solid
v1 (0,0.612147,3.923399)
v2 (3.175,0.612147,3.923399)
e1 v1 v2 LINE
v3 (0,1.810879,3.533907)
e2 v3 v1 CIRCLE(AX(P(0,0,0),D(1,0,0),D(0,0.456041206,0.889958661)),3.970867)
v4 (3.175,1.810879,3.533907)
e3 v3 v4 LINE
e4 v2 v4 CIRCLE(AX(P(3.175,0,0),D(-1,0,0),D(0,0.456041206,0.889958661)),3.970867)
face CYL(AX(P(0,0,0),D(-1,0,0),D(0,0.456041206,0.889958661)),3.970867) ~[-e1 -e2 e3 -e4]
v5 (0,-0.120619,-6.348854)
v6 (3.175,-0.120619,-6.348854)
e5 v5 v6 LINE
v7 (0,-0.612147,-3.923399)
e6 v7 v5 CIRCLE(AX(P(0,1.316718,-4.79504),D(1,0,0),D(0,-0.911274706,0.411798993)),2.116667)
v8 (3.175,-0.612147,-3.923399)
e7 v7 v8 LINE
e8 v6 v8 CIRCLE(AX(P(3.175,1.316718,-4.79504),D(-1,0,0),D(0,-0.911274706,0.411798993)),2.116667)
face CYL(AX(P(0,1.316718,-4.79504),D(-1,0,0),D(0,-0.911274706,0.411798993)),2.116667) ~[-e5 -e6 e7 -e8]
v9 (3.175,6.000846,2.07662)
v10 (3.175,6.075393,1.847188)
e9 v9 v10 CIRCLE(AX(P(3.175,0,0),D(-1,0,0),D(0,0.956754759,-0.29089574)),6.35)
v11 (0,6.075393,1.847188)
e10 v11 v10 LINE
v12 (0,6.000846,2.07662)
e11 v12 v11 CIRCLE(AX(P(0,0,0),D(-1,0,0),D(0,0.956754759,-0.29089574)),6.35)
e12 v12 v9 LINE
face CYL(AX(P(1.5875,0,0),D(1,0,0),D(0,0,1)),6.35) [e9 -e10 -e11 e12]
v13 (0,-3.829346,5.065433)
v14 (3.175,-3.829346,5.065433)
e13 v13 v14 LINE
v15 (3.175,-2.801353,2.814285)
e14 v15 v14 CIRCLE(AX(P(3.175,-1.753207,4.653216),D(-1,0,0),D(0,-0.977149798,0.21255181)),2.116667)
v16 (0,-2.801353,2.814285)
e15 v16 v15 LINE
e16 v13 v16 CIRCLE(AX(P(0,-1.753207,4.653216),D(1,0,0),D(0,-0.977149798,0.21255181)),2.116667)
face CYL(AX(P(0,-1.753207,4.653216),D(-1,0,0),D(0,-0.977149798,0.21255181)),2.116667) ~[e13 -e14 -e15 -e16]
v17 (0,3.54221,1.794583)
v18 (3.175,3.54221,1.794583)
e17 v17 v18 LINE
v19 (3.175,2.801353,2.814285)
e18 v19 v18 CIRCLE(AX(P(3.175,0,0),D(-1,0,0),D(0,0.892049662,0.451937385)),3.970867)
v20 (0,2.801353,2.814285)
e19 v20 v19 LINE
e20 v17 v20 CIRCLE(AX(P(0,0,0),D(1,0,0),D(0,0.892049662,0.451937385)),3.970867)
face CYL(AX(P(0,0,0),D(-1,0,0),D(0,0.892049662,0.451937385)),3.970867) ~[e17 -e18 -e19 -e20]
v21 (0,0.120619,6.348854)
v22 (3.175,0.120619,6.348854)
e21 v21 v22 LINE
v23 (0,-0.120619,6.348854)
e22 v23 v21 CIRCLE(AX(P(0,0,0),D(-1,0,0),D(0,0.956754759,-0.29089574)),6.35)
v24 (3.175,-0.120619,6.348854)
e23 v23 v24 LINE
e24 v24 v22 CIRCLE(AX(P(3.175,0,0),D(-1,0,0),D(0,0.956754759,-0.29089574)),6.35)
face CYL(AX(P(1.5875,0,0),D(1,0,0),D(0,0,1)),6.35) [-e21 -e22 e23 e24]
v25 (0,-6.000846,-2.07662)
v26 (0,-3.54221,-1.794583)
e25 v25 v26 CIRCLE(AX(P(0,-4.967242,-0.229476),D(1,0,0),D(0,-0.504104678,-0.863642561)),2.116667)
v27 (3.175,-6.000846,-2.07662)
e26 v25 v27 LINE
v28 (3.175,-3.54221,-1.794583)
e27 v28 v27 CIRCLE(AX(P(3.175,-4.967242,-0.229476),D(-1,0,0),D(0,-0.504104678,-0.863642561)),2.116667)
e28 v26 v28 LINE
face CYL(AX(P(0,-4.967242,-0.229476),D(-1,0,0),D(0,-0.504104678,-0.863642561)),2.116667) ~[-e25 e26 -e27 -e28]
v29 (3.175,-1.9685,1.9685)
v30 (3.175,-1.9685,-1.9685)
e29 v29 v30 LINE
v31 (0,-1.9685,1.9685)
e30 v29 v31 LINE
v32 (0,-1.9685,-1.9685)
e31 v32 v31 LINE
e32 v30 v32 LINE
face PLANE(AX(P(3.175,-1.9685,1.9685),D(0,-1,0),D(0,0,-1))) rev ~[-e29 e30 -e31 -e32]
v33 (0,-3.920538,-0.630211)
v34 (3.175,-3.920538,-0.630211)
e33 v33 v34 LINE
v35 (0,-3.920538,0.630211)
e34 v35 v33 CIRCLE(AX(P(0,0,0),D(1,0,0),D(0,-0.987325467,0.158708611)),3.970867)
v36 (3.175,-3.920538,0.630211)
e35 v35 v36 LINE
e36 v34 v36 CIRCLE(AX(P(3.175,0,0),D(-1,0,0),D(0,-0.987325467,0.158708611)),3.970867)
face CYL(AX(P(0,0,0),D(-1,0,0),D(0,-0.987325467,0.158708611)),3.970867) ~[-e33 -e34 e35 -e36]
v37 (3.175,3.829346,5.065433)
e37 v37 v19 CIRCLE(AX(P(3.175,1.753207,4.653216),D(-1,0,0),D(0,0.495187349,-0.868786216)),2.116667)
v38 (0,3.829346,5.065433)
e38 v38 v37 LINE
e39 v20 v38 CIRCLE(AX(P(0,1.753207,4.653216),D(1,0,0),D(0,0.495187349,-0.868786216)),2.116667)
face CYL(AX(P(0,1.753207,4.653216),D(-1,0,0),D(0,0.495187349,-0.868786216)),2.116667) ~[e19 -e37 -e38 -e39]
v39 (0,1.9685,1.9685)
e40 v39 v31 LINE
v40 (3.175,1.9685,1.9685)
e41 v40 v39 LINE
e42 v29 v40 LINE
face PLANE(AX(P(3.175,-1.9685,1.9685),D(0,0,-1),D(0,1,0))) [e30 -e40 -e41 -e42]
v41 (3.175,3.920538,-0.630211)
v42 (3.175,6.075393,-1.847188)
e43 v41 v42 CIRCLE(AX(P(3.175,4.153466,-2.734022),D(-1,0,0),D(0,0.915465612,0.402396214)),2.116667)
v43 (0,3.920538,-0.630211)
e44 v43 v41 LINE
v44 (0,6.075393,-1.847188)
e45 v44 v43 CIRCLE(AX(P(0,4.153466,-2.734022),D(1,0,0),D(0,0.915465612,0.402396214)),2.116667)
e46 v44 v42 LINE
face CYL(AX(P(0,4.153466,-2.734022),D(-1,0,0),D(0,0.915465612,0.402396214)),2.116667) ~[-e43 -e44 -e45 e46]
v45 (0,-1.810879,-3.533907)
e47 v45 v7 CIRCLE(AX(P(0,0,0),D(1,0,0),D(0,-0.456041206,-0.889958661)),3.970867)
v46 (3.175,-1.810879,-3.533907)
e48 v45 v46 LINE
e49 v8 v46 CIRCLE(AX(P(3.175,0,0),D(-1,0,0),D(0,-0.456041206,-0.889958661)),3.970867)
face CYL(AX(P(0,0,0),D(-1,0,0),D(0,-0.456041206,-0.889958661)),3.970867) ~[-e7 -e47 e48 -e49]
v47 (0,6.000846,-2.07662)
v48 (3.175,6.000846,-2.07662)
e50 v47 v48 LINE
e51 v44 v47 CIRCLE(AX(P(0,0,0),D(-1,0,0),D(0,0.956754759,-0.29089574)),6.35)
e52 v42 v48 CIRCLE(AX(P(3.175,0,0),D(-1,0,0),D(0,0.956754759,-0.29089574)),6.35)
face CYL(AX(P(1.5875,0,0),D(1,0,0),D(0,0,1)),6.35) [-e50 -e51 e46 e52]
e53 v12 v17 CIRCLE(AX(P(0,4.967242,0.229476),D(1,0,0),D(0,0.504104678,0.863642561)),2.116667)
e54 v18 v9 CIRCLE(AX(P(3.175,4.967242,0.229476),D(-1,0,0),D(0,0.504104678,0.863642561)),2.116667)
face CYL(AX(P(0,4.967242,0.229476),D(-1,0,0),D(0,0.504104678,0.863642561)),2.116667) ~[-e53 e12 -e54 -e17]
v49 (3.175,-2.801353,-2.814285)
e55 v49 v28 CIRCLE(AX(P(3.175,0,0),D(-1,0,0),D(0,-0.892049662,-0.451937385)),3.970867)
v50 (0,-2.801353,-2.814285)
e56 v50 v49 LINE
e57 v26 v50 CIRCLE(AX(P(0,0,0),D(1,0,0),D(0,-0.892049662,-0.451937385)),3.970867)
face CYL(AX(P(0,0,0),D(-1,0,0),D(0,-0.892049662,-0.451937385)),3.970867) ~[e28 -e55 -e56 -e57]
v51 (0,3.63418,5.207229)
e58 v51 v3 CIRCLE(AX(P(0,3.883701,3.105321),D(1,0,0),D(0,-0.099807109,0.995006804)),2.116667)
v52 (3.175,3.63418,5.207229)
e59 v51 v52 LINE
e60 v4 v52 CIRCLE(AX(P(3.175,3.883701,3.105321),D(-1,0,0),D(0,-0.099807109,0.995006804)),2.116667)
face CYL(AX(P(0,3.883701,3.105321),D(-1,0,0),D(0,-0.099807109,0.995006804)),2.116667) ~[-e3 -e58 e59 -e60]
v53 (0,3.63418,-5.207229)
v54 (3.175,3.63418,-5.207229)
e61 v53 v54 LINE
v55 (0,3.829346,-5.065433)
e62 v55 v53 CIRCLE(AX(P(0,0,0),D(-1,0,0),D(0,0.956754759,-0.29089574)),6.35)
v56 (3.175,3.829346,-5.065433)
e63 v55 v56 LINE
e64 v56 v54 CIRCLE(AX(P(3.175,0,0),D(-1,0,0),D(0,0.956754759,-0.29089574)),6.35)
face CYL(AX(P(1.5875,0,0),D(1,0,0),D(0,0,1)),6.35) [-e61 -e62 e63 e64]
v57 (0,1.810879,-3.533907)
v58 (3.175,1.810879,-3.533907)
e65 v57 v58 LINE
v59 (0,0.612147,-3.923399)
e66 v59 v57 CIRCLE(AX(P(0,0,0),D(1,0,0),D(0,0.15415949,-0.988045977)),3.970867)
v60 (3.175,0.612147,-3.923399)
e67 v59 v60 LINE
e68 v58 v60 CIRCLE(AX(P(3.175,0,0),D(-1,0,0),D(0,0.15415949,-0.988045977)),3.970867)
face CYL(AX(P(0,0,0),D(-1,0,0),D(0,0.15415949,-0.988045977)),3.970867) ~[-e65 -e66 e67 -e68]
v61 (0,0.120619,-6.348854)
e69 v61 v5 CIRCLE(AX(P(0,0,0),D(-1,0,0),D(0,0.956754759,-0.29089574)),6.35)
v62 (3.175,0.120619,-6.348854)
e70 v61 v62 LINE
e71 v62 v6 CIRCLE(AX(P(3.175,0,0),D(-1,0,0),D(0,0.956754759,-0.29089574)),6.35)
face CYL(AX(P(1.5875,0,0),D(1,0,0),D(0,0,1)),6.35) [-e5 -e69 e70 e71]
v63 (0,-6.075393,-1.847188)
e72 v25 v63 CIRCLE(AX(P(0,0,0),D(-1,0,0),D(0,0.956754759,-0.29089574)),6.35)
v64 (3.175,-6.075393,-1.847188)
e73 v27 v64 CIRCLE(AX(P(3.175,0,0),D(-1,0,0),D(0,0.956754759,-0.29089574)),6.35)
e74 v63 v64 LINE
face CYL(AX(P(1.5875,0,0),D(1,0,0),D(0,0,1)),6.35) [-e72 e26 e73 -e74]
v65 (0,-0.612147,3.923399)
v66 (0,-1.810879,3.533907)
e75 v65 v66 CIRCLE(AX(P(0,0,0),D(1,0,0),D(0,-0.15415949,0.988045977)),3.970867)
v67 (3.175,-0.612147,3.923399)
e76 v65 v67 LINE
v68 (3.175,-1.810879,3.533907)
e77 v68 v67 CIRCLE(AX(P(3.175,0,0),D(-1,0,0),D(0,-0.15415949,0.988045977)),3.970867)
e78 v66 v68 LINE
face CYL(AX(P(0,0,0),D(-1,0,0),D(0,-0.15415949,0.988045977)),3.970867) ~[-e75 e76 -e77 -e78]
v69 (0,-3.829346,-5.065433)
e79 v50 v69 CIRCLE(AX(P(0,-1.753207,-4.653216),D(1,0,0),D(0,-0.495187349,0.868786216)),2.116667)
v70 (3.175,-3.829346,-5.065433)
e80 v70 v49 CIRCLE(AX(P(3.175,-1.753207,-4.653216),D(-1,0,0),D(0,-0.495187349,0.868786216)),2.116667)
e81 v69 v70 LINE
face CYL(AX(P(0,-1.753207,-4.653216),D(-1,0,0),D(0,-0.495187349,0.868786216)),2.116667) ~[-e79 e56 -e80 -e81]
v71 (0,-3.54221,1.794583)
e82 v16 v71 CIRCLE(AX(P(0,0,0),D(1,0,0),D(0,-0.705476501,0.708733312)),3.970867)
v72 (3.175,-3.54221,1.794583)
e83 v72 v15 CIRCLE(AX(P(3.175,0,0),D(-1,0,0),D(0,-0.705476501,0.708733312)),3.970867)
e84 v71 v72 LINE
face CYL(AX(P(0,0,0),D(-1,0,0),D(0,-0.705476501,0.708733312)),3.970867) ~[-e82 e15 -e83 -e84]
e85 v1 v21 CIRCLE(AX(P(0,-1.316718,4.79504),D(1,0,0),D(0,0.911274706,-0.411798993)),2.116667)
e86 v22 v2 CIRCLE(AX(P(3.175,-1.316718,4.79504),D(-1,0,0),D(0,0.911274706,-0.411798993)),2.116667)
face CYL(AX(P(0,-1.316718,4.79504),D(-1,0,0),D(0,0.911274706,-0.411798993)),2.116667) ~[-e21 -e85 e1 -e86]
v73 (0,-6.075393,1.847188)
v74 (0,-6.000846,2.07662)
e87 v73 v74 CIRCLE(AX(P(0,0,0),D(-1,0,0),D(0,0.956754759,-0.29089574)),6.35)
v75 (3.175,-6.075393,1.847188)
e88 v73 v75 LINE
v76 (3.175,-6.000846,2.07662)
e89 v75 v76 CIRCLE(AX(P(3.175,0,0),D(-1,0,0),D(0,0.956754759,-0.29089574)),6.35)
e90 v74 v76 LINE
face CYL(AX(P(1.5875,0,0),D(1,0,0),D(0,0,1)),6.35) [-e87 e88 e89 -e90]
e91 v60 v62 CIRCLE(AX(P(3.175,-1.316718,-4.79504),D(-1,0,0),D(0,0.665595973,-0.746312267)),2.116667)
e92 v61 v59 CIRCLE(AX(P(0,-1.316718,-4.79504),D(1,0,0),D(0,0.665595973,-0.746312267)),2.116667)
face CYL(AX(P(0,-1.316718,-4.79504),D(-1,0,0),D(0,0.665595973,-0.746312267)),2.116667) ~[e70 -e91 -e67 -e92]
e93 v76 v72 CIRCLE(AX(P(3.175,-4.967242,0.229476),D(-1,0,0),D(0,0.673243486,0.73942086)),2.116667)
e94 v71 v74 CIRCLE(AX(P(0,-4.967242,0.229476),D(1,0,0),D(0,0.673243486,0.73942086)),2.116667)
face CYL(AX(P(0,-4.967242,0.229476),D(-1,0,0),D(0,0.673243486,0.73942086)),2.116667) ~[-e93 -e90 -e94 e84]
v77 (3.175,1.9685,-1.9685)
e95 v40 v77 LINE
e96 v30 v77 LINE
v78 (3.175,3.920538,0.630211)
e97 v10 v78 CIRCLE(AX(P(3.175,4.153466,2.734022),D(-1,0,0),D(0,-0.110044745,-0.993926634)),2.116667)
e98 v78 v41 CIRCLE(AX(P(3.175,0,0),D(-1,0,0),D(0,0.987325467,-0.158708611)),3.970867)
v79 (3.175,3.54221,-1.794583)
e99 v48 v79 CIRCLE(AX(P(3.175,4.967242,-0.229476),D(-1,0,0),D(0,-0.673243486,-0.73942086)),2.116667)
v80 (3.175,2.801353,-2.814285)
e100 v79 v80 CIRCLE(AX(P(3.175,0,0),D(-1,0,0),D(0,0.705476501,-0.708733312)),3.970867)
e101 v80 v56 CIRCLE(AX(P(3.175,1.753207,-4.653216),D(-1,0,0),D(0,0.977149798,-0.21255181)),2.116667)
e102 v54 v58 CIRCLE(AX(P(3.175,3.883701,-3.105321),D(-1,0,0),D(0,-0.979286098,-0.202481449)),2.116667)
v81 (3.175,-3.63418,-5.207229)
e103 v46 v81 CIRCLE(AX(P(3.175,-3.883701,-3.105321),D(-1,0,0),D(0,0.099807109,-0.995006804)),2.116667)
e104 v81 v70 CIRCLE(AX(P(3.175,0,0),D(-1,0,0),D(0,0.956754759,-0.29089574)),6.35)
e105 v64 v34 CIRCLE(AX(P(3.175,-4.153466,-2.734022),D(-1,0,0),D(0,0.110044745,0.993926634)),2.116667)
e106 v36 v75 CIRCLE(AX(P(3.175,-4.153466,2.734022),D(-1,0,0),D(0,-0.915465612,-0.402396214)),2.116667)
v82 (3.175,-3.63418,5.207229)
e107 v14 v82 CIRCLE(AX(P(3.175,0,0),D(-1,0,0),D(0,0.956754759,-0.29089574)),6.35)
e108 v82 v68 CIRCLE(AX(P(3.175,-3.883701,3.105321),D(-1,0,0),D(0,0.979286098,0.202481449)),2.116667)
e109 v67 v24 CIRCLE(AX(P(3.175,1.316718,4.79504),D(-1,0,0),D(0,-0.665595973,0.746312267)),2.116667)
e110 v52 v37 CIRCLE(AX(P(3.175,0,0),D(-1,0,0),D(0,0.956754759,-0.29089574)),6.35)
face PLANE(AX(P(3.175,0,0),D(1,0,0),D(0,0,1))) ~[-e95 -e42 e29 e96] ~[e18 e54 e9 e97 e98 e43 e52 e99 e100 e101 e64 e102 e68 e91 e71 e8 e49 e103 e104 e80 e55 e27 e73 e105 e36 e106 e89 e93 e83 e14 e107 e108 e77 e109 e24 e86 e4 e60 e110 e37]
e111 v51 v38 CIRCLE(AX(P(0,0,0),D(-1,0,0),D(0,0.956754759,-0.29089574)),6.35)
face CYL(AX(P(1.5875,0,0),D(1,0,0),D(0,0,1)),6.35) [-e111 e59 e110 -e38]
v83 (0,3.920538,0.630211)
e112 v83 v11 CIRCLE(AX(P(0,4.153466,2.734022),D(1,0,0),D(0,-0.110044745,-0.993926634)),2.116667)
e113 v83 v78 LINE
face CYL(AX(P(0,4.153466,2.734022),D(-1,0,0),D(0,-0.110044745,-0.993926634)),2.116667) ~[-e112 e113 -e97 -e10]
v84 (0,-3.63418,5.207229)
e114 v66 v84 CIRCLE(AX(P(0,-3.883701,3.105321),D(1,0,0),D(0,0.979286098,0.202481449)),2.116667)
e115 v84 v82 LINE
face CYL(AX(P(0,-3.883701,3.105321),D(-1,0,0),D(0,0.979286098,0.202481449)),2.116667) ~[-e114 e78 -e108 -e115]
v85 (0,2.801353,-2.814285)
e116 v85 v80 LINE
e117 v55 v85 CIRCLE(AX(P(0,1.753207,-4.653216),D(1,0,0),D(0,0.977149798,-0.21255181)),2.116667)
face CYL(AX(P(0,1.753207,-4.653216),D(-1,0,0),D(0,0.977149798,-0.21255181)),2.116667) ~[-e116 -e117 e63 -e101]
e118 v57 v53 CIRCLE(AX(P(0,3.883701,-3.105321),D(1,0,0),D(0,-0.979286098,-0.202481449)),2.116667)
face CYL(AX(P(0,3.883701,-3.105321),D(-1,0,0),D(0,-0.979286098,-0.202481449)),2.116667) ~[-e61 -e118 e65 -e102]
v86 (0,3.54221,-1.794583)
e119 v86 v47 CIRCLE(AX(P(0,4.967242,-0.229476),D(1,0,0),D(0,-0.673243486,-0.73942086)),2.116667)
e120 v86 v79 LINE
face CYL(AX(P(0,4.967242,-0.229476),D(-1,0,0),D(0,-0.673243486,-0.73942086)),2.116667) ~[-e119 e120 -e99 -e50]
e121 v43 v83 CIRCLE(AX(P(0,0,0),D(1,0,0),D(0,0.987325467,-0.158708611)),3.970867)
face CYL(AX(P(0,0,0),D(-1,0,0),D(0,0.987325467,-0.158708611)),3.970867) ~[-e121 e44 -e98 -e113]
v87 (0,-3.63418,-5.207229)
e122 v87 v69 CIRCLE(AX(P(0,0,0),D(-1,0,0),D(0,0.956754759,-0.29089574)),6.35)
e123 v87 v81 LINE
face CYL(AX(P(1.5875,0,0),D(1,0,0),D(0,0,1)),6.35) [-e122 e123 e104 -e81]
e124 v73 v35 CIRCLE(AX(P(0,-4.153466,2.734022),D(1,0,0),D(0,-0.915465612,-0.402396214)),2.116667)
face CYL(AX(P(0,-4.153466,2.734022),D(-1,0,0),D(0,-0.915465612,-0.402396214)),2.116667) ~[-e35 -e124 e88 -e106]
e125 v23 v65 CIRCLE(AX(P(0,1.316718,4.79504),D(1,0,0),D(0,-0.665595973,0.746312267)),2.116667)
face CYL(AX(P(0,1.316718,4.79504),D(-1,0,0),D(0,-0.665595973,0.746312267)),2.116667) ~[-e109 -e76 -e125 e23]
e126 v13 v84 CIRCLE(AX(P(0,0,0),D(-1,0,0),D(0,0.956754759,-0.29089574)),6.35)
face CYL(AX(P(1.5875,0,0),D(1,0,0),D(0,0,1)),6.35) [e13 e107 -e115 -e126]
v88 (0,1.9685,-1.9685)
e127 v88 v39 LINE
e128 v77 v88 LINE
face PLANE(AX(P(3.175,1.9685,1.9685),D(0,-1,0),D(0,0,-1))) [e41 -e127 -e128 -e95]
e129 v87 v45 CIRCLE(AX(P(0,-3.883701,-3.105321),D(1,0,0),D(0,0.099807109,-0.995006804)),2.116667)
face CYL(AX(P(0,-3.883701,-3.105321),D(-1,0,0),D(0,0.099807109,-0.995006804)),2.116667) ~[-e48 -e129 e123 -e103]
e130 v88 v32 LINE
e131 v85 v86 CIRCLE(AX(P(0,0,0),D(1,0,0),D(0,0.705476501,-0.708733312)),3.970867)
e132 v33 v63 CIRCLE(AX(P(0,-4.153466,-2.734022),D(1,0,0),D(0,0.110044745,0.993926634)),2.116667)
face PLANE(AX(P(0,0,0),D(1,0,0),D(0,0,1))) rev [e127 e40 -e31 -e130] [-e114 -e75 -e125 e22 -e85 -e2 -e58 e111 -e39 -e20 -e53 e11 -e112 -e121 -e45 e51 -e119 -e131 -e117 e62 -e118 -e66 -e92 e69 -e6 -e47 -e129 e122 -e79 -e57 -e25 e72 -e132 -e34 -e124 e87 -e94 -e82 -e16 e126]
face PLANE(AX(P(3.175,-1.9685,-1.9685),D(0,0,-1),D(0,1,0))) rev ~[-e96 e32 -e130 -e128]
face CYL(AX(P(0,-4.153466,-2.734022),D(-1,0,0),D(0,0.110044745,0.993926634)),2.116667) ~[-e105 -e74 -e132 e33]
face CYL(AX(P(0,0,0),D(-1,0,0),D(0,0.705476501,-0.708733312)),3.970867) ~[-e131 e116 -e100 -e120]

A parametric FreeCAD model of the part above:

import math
import FreeCAD as App
import Part
import Sketcher
Q = App.Units.Quantity

doc = App.newDocument("Part")
params = doc.addObject("Spreadsheet::Sheet", "Params")
for row, (alias, value) in enumerate([
    ("sketch1_height", "0.25 in"),
    ("sketch1_width", "0.125 in"),
    ("revolution_angle", "360 deg"),
    ("sketch2_radius", "0.251 in"),
    ("pocket2_length", "101.600102 mm"),
    ("sketch4_width", "0.155 in"),
], start=1):
    params.set(f"A{row}", alias)
    params.set(f"B{row}", "=" + value)
    params.setAlias(f"B{row}", alias)

body = doc.addObject("PartDesign::Body", "Body")

sketch1 = body.newObject("Sketcher::SketchObject", "Sketch")
sketch1.AttachmentSupport = (doc.getObject("XZ_Plane"), [""])
sketch1.MapMode = "FlatFace"
sketch1.addGeometry(Part.LineSegment(App.Vector(0, -6.35, 0), App.Vector(0, 0, 0)), False)
sketch1.addGeometry(Part.LineSegment(App.Vector(0, 0, 0), App.Vector(3.175, 0, 0)), False)
sketch1.addGeometry(Part.LineSegment(App.Vector(3.175, 0, 0), App.Vector(3.175, -6.35, 0)), False)
sketch1.addGeometry(Part.LineSegment(App.Vector(3.175, -6.35, 0), App.Vector(0, -6.35, 0)), False)
sketch1.addConstraint(Sketcher.Constraint("Coincident", 0, 2, 1, 1))
sketch1.addConstraint(Sketcher.Constraint("Coincident", 1, 2, 2, 1))
sketch1.addConstraint(Sketcher.Constraint("Coincident", 2, 2, 3, 1))
sketch1.addConstraint(Sketcher.Constraint("Coincident", 3, 2, 0, 1))
sketch1.addConstraint(Sketcher.Constraint("Vertical", 0))
sketch1.addConstraint(Sketcher.Constraint("Horizontal", 1))
sketch1.addConstraint(Sketcher.Constraint("Vertical", 2))
sketch1.addConstraint(Sketcher.Constraint("Horizontal", 3))
sketch1.addConstraint(Sketcher.Constraint("Coincident", 0, 2, -1, 1))
sketch1.addConstraint(Sketcher.Constraint("DistanceY", 0, 1, 0, 2, Q("0.25 in")))
sketch1.addConstraint(Sketcher.Constraint("DistanceX", 1, 1, 1, 2, Q("0.125 in")))
sketch1.setExpression("Constraints[9]", "Params.sketch1_height")
sketch1.setExpression("Constraints[10]", "Params.sketch1_width")
revolution = body.newObject("PartDesign::Revolution", "Revolution")
revolution.Profile = sketch1
revolution.ReferenceAxis = (sketch1, ["H_Axis"])
revolution.setExpression("Angle", "Params.revolution_angle")

sketch2 = body.newObject("Sketcher::SketchObject", "Sketch001")
sketch2.AttachmentSupport = (doc.getObject("YZ_Plane"), [""])
sketch2.MapMode = "FlatFace"
sketch2.addGeometry(Part.ArcOfCircle(Part.Circle(App.Vector(0, 0, 0), App.Vector(0, 0, 1), 3.970867), math.radians(-9.131947), math.radians(9.131947)), False)
sketch2.addGeometry(Part.ArcOfCircle(Part.Circle(App.Vector(4.153466, -2.734022, 0), App.Vector(0, 0, 1), 2.116667), math.radians(23.728063), math.radians(96.317895)), False)
sketch2.addGeometry(Part.ArcOfCircle(Part.Circle(App.Vector(0, 0, 0), App.Vector(0, 0, 1), 6.3754), math.radians(-17.172027), math.radians(17.172027)), False)
sketch2.addGeometry(Part.ArcOfCircle(Part.Circle(App.Vector(4.153466, 2.734022, 0), App.Vector(0, 0, 1), 2.116667), math.radians(-96.317895), math.radians(-23.728063)), False)
sketch2.addConstraint(Sketcher.Constraint("Coincident", 0, 1, 1, 2))
sketch2.addConstraint(Sketcher.Constraint("Coincident", 1, 1, 2, 1))
sketch2.addConstraint(Sketcher.Constraint("Coincident", 2, 2, 3, 2))
sketch2.addConstraint(Sketcher.Constraint("Coincident", 3, 1, 0, 2))
sketch2.addConstraint(Sketcher.Constraint("Coincident", 0, 3, -1, 1))
sketch2.addConstraint(Sketcher.Constraint("Coincident", 2, 3, -1, 1))
sketch2.addConstraint(Sketcher.Constraint("Equal", 1, 3))
sketch2.addConstraint(Sketcher.Constraint("Symmetric", 1, 3, 3, 3, -1))
sketch2.addConstraint(Sketcher.Constraint("Radius", 2, Q("0.251 in")))
sketch2.addConstraint(Sketcher.Constraint("Radius", 0, 3.970867))
sketch2.addConstraint(Sketcher.Constraint("Radius", 1, 2.116667))
sketch2.addConstraint(Sketcher.Constraint("DistanceX", -1, 1, 1, 1, 6.091201))
sketch2.addConstraint(Sketcher.Constraint("DistanceY", 0, 1, -1, 1, 0.630211))
sketch2.setExpression("Constraints[8]", "Params.sketch2_radius")
pocket1 = body.newObject("PartDesign::Pocket", "Pocket")
pocket1.Profile = sketch2
pocket1.Type = "ThroughAll"
pocket1.Reversed = True
doc.recompute()

polarpattern = body.newObject("PartDesign::PolarPattern", "PolarPattern")
polarpattern.Originals = [pocket1]
polarpattern.Axis = (doc.getObject("X_Axis"), [""])
polarpattern.Angle = 360
polarpattern.Occurrences = 10
body.Tip = polarpattern

sketch3 = body.newObject("Sketcher::SketchObject", "Sketch002")
sketch3.AttachmentSupport = (doc.getObject("YZ_Plane"), [""])
sketch3.MapMode = "FlatFace"
sketch3.addGeometry(Part.Circle(App.Vector(0, 0, 0), App.Vector(0, 0, 1), 0.99949), False)
sketch3.addConstraint(Sketcher.Constraint("Coincident", 0, 3, -1, 1))
sketch3.addConstraint(Sketcher.Constraint("Diameter", 0, Q("0.0787 in")))
pocket2 = body.newObject("PartDesign::Pocket", "Pocket001")
pocket2.Profile = sketch3
pocket2.setExpression("Length", "Params.pocket2_length")
pocket2.Midplane = True

sketch4 = body.newObject("Sketcher::SketchObject", "Sketch003")
sketch4.AttachmentSupport = (doc.getObject("YZ_Plane"), [""])
sketch4.MapMode = "FlatFace"
sketch4.AttachmentOffset = App.Placement(App.Vector(0, 0, 0.125 * 25.4), App.Rotation())
sketch4.addGeometry(Part.LineSegment(App.Vector(1.9685, 1.9685, 0), App.Vector(-1.9685, 1.9685, 0)), False)
sketch4.addGeometry(Part.LineSegment(App.Vector(-1.9685, 1.9685, 0), App.Vector(-1.9685, -1.9685, 0)), False)
sketch4.addGeometry(Part.LineSegment(App.Vector(-1.9685, -1.9685, 0), App.Vector(1.9685, -1.9685, 0)), False)
sketch4.addGeometry(Part.LineSegment(App.Vector(1.9685, -1.9685, 0), App.Vector(1.9685, 1.9685, 0)), False)
sketch4.addConstraint(Sketcher.Constraint("Coincident", 0, 2, 1, 1))
sketch4.addConstraint(Sketcher.Constraint("Coincident", 1, 2, 2, 1))
sketch4.addConstraint(Sketcher.Constraint("Coincident", 2, 2, 3, 1))
sketch4.addConstraint(Sketcher.Constraint("Coincident", 3, 2, 0, 1))
sketch4.addConstraint(Sketcher.Constraint("Horizontal", 0))
sketch4.addConstraint(Sketcher.Constraint("Vertical", 1))
sketch4.addConstraint(Sketcher.Constraint("Horizontal", 2))
sketch4.addConstraint(Sketcher.Constraint("Vertical", 3))
sketch4.addConstraint(Sketcher.Constraint("Symmetric", 0, 2, 2, 2, -1, 1))
sketch4.addConstraint(Sketcher.Constraint("Equal", 2, 1))
sketch4.addConstraint(Sketcher.Constraint("DistanceX", 0, 2, 0, 1, Q("0.155 in")))
sketch4.setExpression("Constraints[10]", "Params.sketch4_width")
pocket3 = body.newObject("PartDesign::Pocket", "Pocket002")
pocket3.Profile = sketch4
pocket3.Type = "ThroughAll"
pocket3.Midplane = True

doc.recompute()
